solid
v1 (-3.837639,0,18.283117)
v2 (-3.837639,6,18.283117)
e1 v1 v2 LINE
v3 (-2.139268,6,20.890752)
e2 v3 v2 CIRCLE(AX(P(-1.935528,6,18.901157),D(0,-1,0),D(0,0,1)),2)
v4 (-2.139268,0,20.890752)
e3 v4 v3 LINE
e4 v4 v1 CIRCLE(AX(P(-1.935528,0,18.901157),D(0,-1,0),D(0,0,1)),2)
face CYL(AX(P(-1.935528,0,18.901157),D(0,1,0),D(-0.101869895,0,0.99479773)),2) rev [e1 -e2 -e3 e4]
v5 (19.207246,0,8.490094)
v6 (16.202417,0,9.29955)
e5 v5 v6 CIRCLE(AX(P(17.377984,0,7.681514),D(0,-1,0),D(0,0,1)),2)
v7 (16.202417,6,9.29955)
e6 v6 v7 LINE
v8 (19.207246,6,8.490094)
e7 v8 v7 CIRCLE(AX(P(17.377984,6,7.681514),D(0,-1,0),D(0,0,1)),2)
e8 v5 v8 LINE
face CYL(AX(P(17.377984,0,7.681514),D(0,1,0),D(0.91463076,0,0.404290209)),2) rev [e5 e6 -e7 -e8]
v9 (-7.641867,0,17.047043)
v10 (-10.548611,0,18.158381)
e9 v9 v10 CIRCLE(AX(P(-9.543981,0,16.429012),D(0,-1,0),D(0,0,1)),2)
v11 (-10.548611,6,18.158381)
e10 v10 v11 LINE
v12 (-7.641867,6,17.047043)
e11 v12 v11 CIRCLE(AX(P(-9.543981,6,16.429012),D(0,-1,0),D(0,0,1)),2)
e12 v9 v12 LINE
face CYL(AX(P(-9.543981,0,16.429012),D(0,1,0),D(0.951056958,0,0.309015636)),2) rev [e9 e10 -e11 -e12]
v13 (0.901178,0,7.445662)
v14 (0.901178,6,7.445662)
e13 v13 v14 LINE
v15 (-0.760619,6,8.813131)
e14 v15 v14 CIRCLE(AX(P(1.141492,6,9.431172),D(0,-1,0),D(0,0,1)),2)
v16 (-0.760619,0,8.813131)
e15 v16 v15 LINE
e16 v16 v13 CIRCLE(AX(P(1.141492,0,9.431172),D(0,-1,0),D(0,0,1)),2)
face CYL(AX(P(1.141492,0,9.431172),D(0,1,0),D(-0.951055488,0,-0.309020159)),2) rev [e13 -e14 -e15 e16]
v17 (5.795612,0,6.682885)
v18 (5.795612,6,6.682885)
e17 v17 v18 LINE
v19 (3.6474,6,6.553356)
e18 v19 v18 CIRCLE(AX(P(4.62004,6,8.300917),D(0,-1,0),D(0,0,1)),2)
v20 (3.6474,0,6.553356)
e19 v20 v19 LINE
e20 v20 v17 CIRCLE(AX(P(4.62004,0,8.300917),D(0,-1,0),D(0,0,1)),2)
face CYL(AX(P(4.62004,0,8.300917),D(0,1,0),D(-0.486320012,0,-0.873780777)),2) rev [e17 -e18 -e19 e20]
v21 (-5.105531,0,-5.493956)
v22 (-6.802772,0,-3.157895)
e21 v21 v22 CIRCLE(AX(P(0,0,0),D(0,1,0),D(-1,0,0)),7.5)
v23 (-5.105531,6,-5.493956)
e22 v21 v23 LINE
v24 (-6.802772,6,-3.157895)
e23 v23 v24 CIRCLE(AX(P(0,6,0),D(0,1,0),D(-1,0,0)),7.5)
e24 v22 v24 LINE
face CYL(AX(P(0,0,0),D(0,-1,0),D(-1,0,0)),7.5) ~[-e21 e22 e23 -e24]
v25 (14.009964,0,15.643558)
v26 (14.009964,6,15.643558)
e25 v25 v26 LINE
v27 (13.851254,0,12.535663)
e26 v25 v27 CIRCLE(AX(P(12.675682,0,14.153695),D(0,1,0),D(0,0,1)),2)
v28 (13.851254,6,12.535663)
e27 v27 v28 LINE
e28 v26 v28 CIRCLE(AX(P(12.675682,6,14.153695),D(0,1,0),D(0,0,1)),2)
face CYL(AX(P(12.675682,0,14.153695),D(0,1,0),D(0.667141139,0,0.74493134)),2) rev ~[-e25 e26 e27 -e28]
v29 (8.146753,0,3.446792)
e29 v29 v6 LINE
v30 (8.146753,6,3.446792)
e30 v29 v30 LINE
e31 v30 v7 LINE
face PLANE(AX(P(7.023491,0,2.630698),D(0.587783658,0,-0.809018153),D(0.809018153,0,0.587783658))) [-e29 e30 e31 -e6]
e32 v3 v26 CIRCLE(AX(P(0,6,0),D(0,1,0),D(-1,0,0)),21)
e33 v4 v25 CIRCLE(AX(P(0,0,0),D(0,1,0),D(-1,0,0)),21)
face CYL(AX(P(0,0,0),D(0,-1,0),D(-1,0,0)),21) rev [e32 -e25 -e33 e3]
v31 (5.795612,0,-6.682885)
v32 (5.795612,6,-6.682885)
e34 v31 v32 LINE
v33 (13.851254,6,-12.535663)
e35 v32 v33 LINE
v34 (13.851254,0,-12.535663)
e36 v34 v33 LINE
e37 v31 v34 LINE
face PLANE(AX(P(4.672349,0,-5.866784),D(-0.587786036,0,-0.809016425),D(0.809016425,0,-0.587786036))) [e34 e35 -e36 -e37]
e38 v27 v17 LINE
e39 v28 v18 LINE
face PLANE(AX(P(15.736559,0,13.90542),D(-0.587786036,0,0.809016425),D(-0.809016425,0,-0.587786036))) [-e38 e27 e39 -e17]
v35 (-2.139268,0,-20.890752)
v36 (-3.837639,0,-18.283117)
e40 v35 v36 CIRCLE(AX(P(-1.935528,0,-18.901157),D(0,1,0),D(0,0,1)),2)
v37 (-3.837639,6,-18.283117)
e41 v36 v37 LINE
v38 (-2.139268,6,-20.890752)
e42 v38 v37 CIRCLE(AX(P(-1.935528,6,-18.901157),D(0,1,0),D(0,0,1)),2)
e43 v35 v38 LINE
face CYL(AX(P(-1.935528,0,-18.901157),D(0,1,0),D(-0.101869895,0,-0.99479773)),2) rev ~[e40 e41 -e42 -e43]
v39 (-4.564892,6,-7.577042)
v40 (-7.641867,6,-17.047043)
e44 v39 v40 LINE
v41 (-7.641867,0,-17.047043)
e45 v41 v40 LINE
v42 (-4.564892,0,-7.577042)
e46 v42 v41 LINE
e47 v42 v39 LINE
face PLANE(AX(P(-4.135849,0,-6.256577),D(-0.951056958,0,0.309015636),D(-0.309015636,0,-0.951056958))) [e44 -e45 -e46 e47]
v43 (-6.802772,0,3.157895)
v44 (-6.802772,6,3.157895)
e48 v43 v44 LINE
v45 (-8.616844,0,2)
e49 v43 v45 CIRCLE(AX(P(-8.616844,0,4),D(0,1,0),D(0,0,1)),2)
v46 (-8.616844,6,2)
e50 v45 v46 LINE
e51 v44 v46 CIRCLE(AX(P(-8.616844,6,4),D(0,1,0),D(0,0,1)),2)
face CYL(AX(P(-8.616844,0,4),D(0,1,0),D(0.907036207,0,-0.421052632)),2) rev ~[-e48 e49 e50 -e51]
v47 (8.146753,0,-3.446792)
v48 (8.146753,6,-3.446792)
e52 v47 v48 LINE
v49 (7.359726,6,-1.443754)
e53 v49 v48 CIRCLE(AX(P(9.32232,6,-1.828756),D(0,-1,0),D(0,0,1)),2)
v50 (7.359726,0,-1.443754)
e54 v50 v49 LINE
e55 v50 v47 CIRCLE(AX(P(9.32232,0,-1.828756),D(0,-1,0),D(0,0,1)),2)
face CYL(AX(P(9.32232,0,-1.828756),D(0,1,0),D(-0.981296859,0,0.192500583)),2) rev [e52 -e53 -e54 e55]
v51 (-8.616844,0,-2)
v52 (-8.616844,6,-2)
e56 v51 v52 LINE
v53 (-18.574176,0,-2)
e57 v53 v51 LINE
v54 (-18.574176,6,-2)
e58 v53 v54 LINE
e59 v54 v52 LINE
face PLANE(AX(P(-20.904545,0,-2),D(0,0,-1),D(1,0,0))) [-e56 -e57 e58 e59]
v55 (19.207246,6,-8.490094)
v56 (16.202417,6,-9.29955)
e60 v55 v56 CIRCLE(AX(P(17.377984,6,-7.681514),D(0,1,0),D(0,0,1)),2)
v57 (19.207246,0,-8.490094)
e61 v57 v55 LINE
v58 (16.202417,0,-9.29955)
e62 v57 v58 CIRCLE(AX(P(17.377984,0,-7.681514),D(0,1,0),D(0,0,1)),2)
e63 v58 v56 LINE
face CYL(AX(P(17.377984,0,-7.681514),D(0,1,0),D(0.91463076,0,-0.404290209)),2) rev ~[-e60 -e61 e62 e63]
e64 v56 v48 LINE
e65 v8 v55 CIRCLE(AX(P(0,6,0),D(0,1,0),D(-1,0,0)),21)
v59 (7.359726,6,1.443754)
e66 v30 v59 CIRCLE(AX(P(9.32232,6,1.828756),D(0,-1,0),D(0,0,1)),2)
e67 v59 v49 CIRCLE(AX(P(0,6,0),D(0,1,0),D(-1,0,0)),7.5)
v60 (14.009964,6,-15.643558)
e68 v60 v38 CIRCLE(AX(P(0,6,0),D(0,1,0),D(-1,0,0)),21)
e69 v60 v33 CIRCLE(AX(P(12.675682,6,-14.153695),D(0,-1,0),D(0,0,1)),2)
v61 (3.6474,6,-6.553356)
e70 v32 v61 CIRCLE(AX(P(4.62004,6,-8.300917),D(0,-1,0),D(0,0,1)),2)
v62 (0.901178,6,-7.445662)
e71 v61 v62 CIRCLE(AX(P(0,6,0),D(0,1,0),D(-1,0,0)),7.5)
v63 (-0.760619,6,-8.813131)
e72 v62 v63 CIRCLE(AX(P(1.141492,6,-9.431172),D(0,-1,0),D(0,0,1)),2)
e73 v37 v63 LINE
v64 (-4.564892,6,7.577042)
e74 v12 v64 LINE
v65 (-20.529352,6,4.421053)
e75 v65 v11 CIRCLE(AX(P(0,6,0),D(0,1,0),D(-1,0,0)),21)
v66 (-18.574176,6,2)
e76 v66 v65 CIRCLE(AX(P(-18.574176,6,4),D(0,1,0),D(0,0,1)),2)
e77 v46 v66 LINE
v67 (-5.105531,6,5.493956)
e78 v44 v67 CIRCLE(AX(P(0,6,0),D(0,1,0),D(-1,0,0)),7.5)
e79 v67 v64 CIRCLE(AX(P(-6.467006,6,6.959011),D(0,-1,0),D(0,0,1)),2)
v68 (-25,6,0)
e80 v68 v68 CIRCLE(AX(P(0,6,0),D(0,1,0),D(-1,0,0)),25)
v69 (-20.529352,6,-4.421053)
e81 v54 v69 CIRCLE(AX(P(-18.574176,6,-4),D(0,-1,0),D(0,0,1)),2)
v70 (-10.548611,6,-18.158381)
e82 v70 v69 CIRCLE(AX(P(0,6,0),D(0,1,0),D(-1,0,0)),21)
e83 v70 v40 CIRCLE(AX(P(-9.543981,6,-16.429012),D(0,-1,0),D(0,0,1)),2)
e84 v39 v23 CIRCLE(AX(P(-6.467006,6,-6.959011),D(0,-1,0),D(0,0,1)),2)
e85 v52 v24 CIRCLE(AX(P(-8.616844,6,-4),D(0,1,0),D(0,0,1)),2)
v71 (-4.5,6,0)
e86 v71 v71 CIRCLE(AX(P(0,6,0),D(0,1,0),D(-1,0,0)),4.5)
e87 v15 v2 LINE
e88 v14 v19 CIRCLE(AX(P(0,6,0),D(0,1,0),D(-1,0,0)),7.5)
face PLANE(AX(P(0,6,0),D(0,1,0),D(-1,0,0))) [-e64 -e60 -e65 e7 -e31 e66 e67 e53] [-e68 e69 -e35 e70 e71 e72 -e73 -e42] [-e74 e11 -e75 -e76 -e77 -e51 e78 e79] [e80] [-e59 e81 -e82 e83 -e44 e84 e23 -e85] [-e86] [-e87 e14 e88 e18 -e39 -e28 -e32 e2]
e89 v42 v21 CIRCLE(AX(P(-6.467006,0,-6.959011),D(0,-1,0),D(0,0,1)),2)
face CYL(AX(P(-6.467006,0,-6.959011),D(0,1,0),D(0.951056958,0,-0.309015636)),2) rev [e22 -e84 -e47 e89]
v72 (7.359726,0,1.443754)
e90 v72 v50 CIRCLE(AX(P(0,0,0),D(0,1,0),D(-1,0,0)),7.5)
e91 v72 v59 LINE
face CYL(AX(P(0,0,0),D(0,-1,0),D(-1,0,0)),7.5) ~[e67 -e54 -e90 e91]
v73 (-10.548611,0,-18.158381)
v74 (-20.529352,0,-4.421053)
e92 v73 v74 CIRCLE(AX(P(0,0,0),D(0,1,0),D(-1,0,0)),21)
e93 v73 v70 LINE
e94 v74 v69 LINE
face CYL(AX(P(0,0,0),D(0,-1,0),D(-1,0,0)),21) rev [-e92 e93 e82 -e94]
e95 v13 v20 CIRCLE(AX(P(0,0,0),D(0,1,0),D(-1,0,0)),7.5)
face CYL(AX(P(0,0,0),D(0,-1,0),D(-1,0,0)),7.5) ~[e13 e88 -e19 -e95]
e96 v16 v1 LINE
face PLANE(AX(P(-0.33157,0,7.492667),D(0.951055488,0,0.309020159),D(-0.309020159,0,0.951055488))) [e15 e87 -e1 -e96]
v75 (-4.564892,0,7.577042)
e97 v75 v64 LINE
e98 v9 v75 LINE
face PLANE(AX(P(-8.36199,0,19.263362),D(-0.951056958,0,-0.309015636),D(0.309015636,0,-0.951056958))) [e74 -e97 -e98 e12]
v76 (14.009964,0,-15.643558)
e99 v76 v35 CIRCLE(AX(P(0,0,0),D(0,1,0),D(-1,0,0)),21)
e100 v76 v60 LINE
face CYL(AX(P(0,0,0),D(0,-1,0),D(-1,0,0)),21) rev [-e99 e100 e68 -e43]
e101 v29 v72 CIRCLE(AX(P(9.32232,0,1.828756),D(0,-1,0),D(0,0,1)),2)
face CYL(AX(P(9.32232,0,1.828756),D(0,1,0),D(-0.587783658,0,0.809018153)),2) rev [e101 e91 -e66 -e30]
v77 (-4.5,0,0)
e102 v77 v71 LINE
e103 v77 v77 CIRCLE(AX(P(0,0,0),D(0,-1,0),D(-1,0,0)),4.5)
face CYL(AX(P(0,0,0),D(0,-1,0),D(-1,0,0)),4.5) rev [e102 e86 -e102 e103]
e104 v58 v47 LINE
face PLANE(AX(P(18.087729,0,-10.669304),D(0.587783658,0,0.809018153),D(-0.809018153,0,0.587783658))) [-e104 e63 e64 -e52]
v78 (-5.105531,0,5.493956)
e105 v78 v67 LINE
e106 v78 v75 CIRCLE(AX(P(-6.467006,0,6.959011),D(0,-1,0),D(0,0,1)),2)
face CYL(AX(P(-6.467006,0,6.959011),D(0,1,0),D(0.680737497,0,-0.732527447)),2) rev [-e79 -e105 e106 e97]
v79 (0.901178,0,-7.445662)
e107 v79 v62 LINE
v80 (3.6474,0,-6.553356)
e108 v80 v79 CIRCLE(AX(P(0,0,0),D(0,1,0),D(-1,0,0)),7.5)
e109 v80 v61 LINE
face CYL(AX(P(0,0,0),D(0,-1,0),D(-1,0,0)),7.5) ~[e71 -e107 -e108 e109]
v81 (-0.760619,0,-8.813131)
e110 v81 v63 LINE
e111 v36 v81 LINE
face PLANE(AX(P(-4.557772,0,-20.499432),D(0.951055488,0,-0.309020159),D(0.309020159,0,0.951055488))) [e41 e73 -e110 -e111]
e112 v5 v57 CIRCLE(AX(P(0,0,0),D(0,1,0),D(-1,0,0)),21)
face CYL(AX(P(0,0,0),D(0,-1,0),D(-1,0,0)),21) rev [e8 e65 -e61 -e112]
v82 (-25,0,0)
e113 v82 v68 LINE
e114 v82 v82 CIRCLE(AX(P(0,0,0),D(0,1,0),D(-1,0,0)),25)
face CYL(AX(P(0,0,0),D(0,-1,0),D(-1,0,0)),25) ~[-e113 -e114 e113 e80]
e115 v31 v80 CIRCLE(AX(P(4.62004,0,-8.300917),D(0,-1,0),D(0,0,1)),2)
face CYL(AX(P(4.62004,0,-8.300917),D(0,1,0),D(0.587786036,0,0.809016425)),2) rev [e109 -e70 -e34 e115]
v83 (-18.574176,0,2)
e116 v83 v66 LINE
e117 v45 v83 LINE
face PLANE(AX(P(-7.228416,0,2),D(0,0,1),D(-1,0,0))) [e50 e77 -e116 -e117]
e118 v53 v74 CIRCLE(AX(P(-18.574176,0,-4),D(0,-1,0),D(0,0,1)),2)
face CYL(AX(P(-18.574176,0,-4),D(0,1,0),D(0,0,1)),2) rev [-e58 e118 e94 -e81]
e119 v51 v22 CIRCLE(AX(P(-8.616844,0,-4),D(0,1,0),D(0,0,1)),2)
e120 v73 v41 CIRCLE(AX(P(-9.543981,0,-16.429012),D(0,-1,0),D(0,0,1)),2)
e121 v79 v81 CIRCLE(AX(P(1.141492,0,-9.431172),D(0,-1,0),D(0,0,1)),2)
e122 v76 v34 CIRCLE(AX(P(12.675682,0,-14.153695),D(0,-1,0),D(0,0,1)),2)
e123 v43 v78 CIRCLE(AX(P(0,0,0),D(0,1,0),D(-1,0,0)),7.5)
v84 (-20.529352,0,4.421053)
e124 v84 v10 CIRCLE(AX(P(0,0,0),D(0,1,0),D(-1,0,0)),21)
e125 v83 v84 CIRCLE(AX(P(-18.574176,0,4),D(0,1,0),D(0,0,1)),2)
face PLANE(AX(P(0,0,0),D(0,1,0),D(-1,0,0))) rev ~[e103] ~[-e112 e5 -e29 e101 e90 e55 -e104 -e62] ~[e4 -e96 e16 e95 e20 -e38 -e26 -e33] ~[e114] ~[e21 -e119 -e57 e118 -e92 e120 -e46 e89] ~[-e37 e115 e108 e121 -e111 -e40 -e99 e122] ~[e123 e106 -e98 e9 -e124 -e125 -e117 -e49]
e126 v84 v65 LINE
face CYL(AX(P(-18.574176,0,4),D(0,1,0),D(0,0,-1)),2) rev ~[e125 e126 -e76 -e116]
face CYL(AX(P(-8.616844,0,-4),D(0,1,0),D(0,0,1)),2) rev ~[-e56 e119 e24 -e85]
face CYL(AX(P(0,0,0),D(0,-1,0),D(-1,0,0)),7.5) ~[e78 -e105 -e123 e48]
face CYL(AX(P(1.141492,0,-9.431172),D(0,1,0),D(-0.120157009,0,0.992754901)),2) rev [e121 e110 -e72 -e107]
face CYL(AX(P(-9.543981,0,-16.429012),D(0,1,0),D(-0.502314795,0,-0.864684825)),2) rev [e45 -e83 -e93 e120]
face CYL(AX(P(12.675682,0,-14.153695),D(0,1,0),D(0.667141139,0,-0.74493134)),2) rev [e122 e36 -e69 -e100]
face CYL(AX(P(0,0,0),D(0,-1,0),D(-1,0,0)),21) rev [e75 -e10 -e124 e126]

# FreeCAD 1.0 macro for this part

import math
import FreeCAD as App
import Part
import Sketcher
from FreeCAD import Vector
Q = App.Units.Quantity


def edges_at(feature, points):
    """Names of the edges that pass closest to the given points."""
    edges = feature.Shape.Edges
    near = lambda p: min(range(len(edges)), key=lambda i: edges[i].distToShape(Part.Vertex(*p))[0])
    return sorted({f"Edge{near(p) + 1}" for p in points})

doc = App.newDocument("Part")
body = doc.addObject("PartDesign::Body", "Body")

sketch1 = body.newObject("Sketcher::SketchObject", "Sketch")
sketch1.AttachmentSupport = (doc.getObject("XZ_Plane"), [""])
sketch1.MapMode = "FlatFace"
sketch1.addGeometry([
    Part.Circle(Vector(0, 0, 0), Vector(0, 0, 1), 25),
    Part.Circle(Vector(0, 0, 0), Vector(0, 0, 1), 4.5),
    Part.LineSegment(Vector(-7.2, -2, 0), Vector(-20.9, -2, 0)),
    Part.ArcOfCircle(Part.Circle(Vector(0, 0, 0), Vector(0, 0, 1), 21), math.radians(-175), math.radians(-113)),
    Part.LineSegment(Vector(-8.4, -19.3, 0), Vector(-4.1, -6.3, 0)),
    Part.ArcOfCircle(Part.Circle(Vector(0, 0, 0), Vector(0, 0, 1), 7.5), math.radians(-165), math.radians(-123)),
    Part.ArcOfCircle(Part.Circle(Vector(0, 0, 0), Vector(0, 0, 1), 7.5), math.radians(123), math.radians(165)),
    Part.LineSegment(Vector(-4.1, 6.3, 0), Vector(-8.4, 19.3, 0)),
    Part.ArcOfCircle(Part.Circle(Vector(0, 0, 0), Vector(0, 0, 1), 21), math.radians(113), math.radians(175)),
    Part.LineSegment(Vector(-20.9, 2, 0), Vector(-7.2, 2, 0)),
    Part.ArcOfCircle(Part.Circle(Vector(0, 0, 0), Vector(0, 0, 1), 21), math.radians(41), math.radians(103)),
    Part.LineSegment(Vector(-4.6, 20.5, 0), Vector(-0.3, 7.5, 0)),
    Part.ArcOfCircle(Part.Circle(Vector(0, 0, 0), Vector(0, 0, 1), 7.5), math.radians(51), math.radians(93)),
    Part.LineSegment(Vector(4.7, 5.9, 0), Vector(15.7, 13.9, 0)),
    Part.ArcOfCircle(Part.Circle(Vector(0, 0, 0), Vector(0, 0, 1), 21), math.radians(-31), math.radians(31)),
    Part.LineSegment(Vector(18.1, 10.7, 0), Vector(7, 2.6, 0)),
    Part.ArcOfCircle(Part.Circle(Vector(0, 0, 0), Vector(0, 0, 1), 7.5), math.radians(-21), math.radians(21)),
    Part.LineSegment(Vector(7, -2.6, 0), Vector(18.1, -10.7, 0)),
    Part.ArcOfCircle(Part.Circle(Vector(0, 0, 0), Vector(0, 0, 1), 21), math.radians(-103), math.radians(-41)),
    Part.LineSegment(Vector(15.7, -13.9, 0), Vector(4.7, -5.9, 0)),
    Part.ArcOfCircle(Part.Circle(Vector(0, 0, 0), Vector(0, 0, 1), 7.5), math.radians(-93), math.radians(-51)),
    Part.LineSegment(Vector(-0.3, -7.5, 0), Vector(-4.6, -20.5, 0)),
], False)
sketch1.addConstraint([
    Sketcher.Constraint("Coincident", 2, 2, 3, 1),
    Sketcher.Constraint("Coincident", 3, 2, 4, 1),
    Sketcher.Constraint("Coincident", 4, 2, 5, 2),
    Sketcher.Constraint("Coincident", 5, 1, 2, 1),
    Sketcher.Constraint("Coincident", 6, 1, 7, 1),
    Sketcher.Constraint("Coincident", 7, 2, 8, 1),
    Sketcher.Constraint("Coincident", 8, 2, 9, 1),
    Sketcher.Constraint("Coincident", 9, 2, 6, 2),
    Sketcher.Constraint("Coincident", 10, 2, 11, 1),
    Sketcher.Constraint("Coincident", 11, 2, 12, 2),
    Sketcher.Constraint("Coincident", 12, 1, 13, 1),
    Sketcher.Constraint("Coincident", 13, 2, 10, 1),
    Sketcher.Constraint("Coincident", 14, 2, 15, 1),
    Sketcher.Constraint("Coincident", 15, 2, 16, 2),
    Sketcher.Constraint("Coincident", 16, 1, 17, 1),
    Sketcher.Constraint("Coincident", 17, 2, 14, 1),
    Sketcher.Constraint("Coincident", 18, 2, 19, 1),
    Sketcher.Constraint("Coincident", 19, 2, 20, 2),
    Sketcher.Constraint("Coincident", 20, 1, 21, 1),
    Sketcher.Constraint("Coincident", 21, 2, 18, 1),
    Sketcher.Constraint("Horizontal", 2),
    Sketcher.Constraint("Horizontal", 9),
    Sketcher.Constraint("Coincident", 0, 3, -1, 1),
    Sketcher.Constraint("Coincident", 1, 3, -1, 1),
    Sketcher.Constraint("Coincident", 3, 3, -1, 1),
    Sketcher.Constraint("Coincident", 5, 3, -1, 1),
    Sketcher.Constraint("Coincident", 6, 3, -1, 1),
    Sketcher.Constraint("Coincident", 8, 3, -1, 1),
    Sketcher.Constraint("Coincident", 10, 3, -1, 1),
    Sketcher.Constraint("Coincident", 12, 3, -1, 1),
    Sketcher.Constraint("Coincident", 14, 3, -1, 1),
    Sketcher.Constraint("Coincident", 16, 3, -1, 1),
    Sketcher.Constraint("Coincident", 18, 3, -1, 1),
    Sketcher.Constraint("Coincident", 20, 3, -1, 1),
    Sketcher.Constraint("Equal", 5, 6),
    Sketcher.Constraint("Equal", 3, 8),
    Sketcher.Constraint("Equal", 8, 10),
    Sketcher.Constraint("Equal", 6, 12),
    Sketcher.Constraint("Equal", 10, 14),
    Sketcher.Constraint("Equal", 12, 16),
    Sketcher.Constraint("Equal", 14, 18),
    Sketcher.Constraint("Equal", 16, 20),
    Sketcher.Constraint("Parallel", 7, 11),
    Sketcher.Constraint("Parallel", 13, 15),
    Sketcher.Constraint("Parallel", 17, 19),
    Sketcher.Constraint("Parallel", 4, 21),
    Sketcher.Constraint("Vertical", 4, 2, 6, 1),
    Sketcher.Constraint("Vertical", 3, 2, 7, 2),
    Sketcher.Constraint("Vertical", 2, 2, 8, 2),
    Sketcher.Constraint("Vertical", 15, 2, 16, 1),
    Sketcher.Constraint("Vertical", 14, 2, 17, 2),
    Sketcher.Constraint("Vertical", 13, 2, 18, 2),
    Sketcher.Constraint("Vertical", 11, 2, 20, 1),
    Sketcher.Constraint("Equal", 7, 11),
    Sketcher.Constraint("Equal", 11, 13),
    Sketcher.Constraint("Equal", 13, 15),
    Sketcher.Constraint("Diameter", 0, 50.0),
    Sketcher.Constraint("Diameter", 1, 9.0),
    Sketcher.Constraint("Radius", 3, 21.0),
    Sketcher.Constraint("DistanceY", 2, 2, 8, 2, 4.0),
    Sketcher.Constraint("Radius", 5, 7.5),
    Sketcher.Constraint("Angle", 4, Q("72 deg")),
    Sketcher.Constraint("Angle", 13, Q("36 deg")),
    Sketcher.Constraint("DistanceY", 17, 2, 15, 2, 13.3),
])
pad1 = body.newObject("PartDesign::Pad", "Pad")
pad1.Profile = sketch1
pad1.Length = 6
pad1.Reversed = True
doc.recompute()

fillet = body.newObject("PartDesign::Fillet", "Fillet")
fillet.Base = (pad1, edges_at(pad1, [
    (-8.362, 3, 19.263),
    (-20.904, 3, 2),
    (-7.228, 3, 2),
    (-4.136, 3, 6.257),
]))
fillet.Radius = 2
doc.recompute()

polarpattern = body.newObject("PartDesign::PolarPattern", "PolarPattern")
polarpattern.Originals = [fillet]
polarpattern.Axis = (doc.getObject("Y_Axis"), [""])
polarpattern.Angle = 360
polarpattern.Occurrences = 5
body.Tip = polarpattern

doc.recompute()
